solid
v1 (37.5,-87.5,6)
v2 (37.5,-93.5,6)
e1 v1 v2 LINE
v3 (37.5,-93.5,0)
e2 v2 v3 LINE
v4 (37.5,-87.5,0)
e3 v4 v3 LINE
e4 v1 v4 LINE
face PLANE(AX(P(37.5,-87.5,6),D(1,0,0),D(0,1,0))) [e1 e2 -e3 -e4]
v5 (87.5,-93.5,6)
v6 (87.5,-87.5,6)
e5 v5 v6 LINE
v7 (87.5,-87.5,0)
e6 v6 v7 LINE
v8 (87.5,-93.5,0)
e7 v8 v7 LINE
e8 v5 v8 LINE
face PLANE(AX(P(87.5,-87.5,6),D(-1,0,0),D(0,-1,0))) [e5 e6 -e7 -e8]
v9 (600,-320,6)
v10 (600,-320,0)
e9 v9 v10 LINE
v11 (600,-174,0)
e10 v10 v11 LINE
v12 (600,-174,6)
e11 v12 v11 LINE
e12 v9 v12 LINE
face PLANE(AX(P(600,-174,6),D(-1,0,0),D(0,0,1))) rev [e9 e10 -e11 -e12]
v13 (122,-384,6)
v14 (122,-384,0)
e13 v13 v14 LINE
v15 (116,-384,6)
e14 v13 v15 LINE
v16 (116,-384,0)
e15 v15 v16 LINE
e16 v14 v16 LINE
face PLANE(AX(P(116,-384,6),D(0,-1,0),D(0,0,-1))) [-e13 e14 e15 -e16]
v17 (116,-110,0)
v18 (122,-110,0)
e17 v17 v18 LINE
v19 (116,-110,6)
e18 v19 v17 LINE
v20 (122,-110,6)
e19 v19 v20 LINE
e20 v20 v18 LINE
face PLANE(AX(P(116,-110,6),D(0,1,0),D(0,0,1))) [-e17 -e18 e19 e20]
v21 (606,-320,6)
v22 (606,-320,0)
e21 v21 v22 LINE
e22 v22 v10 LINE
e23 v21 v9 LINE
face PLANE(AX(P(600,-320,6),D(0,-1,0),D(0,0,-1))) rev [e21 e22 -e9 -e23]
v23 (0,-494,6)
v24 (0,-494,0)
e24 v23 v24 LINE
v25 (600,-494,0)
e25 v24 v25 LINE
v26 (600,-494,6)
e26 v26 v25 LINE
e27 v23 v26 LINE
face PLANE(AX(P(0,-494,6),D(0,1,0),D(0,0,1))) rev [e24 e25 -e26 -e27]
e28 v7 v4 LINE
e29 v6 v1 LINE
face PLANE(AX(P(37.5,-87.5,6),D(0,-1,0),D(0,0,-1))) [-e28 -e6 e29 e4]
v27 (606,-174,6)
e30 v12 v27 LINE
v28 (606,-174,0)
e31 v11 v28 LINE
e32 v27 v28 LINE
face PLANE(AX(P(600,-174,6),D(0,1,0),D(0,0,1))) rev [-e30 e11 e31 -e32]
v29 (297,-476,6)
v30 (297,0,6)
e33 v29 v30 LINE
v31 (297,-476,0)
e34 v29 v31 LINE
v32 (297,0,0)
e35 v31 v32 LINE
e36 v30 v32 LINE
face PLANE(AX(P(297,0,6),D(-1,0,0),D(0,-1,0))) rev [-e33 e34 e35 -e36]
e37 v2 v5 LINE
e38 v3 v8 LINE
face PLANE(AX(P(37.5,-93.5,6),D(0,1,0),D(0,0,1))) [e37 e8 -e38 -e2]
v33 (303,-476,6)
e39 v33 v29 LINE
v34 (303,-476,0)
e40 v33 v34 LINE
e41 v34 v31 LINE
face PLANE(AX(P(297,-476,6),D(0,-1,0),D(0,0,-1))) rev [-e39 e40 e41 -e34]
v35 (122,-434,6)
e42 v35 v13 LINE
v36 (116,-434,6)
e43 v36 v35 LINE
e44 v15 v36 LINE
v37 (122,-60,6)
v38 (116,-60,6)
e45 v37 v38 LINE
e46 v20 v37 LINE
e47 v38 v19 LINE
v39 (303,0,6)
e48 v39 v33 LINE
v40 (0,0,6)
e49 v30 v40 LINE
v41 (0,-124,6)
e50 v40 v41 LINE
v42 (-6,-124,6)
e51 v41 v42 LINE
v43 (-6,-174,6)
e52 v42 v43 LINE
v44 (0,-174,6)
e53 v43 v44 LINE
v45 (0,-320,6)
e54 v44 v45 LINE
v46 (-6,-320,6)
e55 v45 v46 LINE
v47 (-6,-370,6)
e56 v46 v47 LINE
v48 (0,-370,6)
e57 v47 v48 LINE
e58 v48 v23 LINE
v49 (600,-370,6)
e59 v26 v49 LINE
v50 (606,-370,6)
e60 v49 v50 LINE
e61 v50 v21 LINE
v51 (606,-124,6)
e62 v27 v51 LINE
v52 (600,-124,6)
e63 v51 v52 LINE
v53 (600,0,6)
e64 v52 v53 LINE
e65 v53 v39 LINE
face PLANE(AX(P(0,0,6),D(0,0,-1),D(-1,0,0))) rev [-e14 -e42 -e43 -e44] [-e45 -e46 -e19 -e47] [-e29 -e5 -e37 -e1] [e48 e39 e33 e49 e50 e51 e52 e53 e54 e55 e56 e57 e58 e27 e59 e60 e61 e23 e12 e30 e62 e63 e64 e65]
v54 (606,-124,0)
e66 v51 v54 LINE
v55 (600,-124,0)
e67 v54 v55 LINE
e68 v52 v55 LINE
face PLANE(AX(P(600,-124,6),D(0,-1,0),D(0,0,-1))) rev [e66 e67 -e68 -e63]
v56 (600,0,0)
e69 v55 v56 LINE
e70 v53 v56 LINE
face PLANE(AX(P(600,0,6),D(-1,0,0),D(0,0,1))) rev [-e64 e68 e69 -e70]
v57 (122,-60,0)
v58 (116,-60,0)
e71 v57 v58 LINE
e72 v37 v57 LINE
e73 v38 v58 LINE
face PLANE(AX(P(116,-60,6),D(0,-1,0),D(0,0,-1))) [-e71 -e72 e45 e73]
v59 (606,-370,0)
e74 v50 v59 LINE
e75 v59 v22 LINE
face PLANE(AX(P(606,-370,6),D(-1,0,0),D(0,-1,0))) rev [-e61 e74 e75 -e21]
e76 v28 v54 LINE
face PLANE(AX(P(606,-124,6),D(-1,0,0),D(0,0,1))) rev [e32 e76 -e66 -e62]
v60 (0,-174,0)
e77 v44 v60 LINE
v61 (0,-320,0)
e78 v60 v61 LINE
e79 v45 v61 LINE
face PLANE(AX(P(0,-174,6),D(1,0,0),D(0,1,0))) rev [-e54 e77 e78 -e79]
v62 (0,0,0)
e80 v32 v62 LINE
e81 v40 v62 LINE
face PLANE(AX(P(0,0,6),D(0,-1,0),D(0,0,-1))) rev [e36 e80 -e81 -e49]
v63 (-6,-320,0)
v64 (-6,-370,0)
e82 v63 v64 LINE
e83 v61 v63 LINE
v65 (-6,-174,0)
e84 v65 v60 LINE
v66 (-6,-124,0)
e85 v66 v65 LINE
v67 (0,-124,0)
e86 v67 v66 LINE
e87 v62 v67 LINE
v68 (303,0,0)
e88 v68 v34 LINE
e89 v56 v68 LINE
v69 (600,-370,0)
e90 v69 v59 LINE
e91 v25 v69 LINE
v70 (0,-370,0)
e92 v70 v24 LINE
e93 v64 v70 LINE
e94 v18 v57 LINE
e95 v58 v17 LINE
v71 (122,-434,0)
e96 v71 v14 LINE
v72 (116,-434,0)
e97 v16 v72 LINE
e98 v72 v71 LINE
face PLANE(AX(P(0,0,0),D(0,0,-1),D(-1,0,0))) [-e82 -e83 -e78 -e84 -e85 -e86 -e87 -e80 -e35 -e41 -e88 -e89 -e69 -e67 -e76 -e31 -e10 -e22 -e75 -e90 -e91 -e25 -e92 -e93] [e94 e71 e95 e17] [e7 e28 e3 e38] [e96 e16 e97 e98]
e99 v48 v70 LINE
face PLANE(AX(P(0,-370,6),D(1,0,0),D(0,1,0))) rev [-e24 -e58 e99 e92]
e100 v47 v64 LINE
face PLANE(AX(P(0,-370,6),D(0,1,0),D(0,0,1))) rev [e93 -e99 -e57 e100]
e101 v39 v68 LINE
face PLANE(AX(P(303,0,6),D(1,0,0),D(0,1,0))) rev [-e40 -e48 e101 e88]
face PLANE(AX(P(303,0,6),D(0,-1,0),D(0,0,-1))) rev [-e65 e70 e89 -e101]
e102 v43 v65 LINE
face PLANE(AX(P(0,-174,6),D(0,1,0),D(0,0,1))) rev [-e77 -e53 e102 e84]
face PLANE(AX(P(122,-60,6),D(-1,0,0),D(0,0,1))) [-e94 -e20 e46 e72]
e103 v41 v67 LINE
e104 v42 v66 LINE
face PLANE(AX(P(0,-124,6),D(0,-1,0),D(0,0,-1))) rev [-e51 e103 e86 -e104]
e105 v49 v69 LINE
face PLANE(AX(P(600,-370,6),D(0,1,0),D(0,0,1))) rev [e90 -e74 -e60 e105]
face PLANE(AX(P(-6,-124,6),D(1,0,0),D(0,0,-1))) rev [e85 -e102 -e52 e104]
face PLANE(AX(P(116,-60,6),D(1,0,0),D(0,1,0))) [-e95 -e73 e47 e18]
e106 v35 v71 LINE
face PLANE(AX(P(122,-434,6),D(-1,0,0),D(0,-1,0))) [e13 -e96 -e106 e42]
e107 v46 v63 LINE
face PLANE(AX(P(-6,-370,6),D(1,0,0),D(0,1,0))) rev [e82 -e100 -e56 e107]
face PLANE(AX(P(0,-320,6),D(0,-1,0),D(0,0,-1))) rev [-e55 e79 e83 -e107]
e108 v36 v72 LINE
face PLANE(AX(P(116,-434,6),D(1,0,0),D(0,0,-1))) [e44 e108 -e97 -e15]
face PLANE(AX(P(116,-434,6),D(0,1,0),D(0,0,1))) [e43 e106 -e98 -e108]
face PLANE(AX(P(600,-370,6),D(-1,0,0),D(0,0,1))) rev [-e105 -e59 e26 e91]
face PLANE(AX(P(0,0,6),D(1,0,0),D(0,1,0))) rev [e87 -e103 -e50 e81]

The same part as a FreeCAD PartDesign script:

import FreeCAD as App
import Part
import Sketcher

V = App.Vector


def add_polygon(sketch, points):
    """Adds a closed chain of lines whose ends are joined by coincident constraints."""
    first, n = sketch.GeometryCount, len(points)
    for a, b in zip(points, points[1:] + points[:1]):
        sketch.addGeometry(Part.LineSegment(App.Vector(*a, 0), App.Vector(*b, 0)), False)
    for i in range(n):
        sketch.addConstraint(Sketcher.Constraint("Coincident", first + i, 2, first + (i + 1) % n, 1))

doc = App.newDocument("Part")
params = doc.addObject("Spreadsheet::Sheet", "Params")
for row, (alias, value) in enumerate([
    ("sketch1_width", "297 mm"),
    ("sketch1_width2", "6 mm"),
    ("sketch1_width3", "50 mm"),
    ("sketch1_height", "124 mm"),
    ("sketch1_height2", "146 mm"),
    ("pad1_length", "6 mm"),
], start=1):
    params.set(f"A{row}", alias)
    params.set(f"B{row}", "=" + value)
    params.setAlias(f"B{row}", alias)

body = doc.addObject("PartDesign::Body", "Body")

# Sketch on XY plane
sketch1 = body.newObject("Sketcher::SketchObject", "Sketch")
sketch1.AttachmentSupport = (doc.getObject("XY_Plane"), [""])
sketch1.MapMode = "FlatFace"
add_polygon(sketch1, [(297, 0), (0, 0), (0, -124), (-6, -124), (-6, -174), (0, -174), (0, -320), (-6, -320), (-6, -370), (0, -370), (0, -494), (600, -494), (600, -370), (606, -370), (606, -320), (600, -320), (600, -174), (606, -174), (606, -124), (600, -124), (600, 0), (303, 0), (303, -476), (297, -476)])  # lines 0-23
add_polygon(sketch1, [(116, -434), (116, -384), (122, -384), (122, -434)])  # lines 24-27
add_polygon(sketch1, [(116, -110), (116, -60), (122, -60), (122, -110)])  # lines 28-31
add_polygon(sketch1, [(37.5, -93.5), (37.5, -87.5), (87.5, -87.5), (87.5, -93.5)])  # lines 32-35
sketch1.addConstraint([
    Sketcher.Constraint("Horizontal", 0),
    Sketcher.Constraint("Vertical", 1),
    Sketcher.Constraint("Horizontal", 2),
    Sketcher.Constraint("Vertical", 3),
    Sketcher.Constraint("Horizontal", 4),
    Sketcher.Constraint("Vertical", 5),
    Sketcher.Constraint("Horizontal", 6),
    Sketcher.Constraint("Vertical", 7),
    Sketcher.Constraint("Horizontal", 8),
    Sketcher.Constraint("Vertical", 9),
    Sketcher.Constraint("Horizontal", 10),
    Sketcher.Constraint("Vertical", 11),
    Sketcher.Constraint("Horizontal", 12),
    Sketcher.Constraint("Vertical", 13),
    Sketcher.Constraint("Horizontal", 14),
    Sketcher.Constraint("Vertical", 15),
    Sketcher.Constraint("Horizontal", 16),
    Sketcher.Constraint("Vertical", 17),
    Sketcher.Constraint("Horizontal", 18),
    Sketcher.Constraint("Vertical", 19),
    Sketcher.Constraint("Horizontal", 20),
    Sketcher.Constraint("Vertical", 21),
    Sketcher.Constraint("Horizontal", 22),
    Sketcher.Constraint("Vertical", 23),
    Sketcher.Constraint("Vertical", 24),
    Sketcher.Constraint("Horizontal", 25),
    Sketcher.Constraint("Vertical", 26),
    Sketcher.Constraint("Horizontal", 27),
    Sketcher.Constraint("Vertical", 28),
    Sketcher.Constraint("Horizontal", 29),
    Sketcher.Constraint("Vertical", 30),
    Sketcher.Constraint("Horizontal", 31),
    Sketcher.Constraint("Vertical", 32),
    Sketcher.Constraint("Horizontal", 33),
    Sketcher.Constraint("Vertical", 34),
    Sketcher.Constraint("Horizontal", 35),
    Sketcher.Constraint("Coincident", 0, 2, -1, 1),
    Sketcher.Constraint("PointOnObject", 4, 2, -2),
    Sketcher.Constraint("PointOnObject", 8, 2, -2),
    Sketcher.Constraint("PointOnObject", 19, 2, -1),
    Sketcher.Constraint("Horizontal", 8, 2, 11, 2),
    Sketcher.Constraint("Horizontal", 6, 2, 13, 2),
    Sketcher.Constraint("Horizontal", 4, 2, 15, 2),
    Sketcher.Constraint("Horizontal", 2, 2, 17, 2),
    Sketcher.Constraint("Vertical", 3, 2, 6, 2),
    Sketcher.Constraint("Vertical", 11, 2, 14, 2),
    Sketcher.Constraint("Vertical", 13, 2, 16, 2),
    Sketcher.Constraint("Vertical", 15, 2, 18, 2),
    Sketcher.Constraint("Vertical", 27, 2, 28, 2),
    Sketcher.Constraint("Vertical", 26, 2, 29, 2),
    Sketcher.Constraint("Equal", 8, 12),
    Sketcher.Constraint("Equal", 0, 20),
    Sketcher.Constraint("Equal", 18, 22),
    Sketcher.Constraint("Equal", 22, 25),
    Sketcher.Constraint("Equal", 35, 3),
    Sketcher.Constraint("Equal", 3, 7),
    Sketcher.Constraint("Equal", 1, 9),
    Sketcher.Constraint("Equal", 17, 24),
    Sketcher.Constraint("Equal", 26, 28),
    Sketcher.Constraint("Equal", 31, 32),
    Sketcher.Constraint("DistanceX", 0, 2, 0, 1, 297.0),
    Sketcher.Constraint("DistanceX", 2, 2, 2, 1, 6.0),
    Sketcher.Constraint("DistanceX", 33, 1, 33, 2, 50.0),
    Sketcher.Constraint("DistanceY", 1, 2, 1, 1, 124.0),
    Sketcher.Constraint("DistanceY", 5, 2, 5, 1, 146.0),
    Sketcher.Constraint("DistanceY", 21, 2, 21, 1, 476.0),
    Sketcher.Constraint("DistanceX", -1, 1, 24, 2, 116.0),
    Sketcher.Constraint("DistanceY", 24, 2, -1, 1, 384.0),
    Sketcher.Constraint("DistanceY", 28, 2, -1, 1, 60.0),
    Sketcher.Constraint("DistanceX", -1, 1, 32, 2, 37.5),
    Sketcher.Constraint("DistanceY", 32, 2, -1, 1, 87.5),
])
sketch1.setExpression("Constraints[96]", "Params.sketch1_width")
sketch1.setExpression("Constraints[97]", "Params.sketch1_width2")
sketch1.setExpression("Constraints[98]", "Params.sketch1_width3")
sketch1.setExpression("Constraints[99]", "Params.sketch1_height")
sketch1.setExpression("Constraints[100]", "Params.sketch1_height2")
pad1 = body.newObject("PartDesign::Pad", "Pad")
pad1.Profile = sketch1
pad1.setExpression("Length", "Params.pad1_length")

doc.recompute()
